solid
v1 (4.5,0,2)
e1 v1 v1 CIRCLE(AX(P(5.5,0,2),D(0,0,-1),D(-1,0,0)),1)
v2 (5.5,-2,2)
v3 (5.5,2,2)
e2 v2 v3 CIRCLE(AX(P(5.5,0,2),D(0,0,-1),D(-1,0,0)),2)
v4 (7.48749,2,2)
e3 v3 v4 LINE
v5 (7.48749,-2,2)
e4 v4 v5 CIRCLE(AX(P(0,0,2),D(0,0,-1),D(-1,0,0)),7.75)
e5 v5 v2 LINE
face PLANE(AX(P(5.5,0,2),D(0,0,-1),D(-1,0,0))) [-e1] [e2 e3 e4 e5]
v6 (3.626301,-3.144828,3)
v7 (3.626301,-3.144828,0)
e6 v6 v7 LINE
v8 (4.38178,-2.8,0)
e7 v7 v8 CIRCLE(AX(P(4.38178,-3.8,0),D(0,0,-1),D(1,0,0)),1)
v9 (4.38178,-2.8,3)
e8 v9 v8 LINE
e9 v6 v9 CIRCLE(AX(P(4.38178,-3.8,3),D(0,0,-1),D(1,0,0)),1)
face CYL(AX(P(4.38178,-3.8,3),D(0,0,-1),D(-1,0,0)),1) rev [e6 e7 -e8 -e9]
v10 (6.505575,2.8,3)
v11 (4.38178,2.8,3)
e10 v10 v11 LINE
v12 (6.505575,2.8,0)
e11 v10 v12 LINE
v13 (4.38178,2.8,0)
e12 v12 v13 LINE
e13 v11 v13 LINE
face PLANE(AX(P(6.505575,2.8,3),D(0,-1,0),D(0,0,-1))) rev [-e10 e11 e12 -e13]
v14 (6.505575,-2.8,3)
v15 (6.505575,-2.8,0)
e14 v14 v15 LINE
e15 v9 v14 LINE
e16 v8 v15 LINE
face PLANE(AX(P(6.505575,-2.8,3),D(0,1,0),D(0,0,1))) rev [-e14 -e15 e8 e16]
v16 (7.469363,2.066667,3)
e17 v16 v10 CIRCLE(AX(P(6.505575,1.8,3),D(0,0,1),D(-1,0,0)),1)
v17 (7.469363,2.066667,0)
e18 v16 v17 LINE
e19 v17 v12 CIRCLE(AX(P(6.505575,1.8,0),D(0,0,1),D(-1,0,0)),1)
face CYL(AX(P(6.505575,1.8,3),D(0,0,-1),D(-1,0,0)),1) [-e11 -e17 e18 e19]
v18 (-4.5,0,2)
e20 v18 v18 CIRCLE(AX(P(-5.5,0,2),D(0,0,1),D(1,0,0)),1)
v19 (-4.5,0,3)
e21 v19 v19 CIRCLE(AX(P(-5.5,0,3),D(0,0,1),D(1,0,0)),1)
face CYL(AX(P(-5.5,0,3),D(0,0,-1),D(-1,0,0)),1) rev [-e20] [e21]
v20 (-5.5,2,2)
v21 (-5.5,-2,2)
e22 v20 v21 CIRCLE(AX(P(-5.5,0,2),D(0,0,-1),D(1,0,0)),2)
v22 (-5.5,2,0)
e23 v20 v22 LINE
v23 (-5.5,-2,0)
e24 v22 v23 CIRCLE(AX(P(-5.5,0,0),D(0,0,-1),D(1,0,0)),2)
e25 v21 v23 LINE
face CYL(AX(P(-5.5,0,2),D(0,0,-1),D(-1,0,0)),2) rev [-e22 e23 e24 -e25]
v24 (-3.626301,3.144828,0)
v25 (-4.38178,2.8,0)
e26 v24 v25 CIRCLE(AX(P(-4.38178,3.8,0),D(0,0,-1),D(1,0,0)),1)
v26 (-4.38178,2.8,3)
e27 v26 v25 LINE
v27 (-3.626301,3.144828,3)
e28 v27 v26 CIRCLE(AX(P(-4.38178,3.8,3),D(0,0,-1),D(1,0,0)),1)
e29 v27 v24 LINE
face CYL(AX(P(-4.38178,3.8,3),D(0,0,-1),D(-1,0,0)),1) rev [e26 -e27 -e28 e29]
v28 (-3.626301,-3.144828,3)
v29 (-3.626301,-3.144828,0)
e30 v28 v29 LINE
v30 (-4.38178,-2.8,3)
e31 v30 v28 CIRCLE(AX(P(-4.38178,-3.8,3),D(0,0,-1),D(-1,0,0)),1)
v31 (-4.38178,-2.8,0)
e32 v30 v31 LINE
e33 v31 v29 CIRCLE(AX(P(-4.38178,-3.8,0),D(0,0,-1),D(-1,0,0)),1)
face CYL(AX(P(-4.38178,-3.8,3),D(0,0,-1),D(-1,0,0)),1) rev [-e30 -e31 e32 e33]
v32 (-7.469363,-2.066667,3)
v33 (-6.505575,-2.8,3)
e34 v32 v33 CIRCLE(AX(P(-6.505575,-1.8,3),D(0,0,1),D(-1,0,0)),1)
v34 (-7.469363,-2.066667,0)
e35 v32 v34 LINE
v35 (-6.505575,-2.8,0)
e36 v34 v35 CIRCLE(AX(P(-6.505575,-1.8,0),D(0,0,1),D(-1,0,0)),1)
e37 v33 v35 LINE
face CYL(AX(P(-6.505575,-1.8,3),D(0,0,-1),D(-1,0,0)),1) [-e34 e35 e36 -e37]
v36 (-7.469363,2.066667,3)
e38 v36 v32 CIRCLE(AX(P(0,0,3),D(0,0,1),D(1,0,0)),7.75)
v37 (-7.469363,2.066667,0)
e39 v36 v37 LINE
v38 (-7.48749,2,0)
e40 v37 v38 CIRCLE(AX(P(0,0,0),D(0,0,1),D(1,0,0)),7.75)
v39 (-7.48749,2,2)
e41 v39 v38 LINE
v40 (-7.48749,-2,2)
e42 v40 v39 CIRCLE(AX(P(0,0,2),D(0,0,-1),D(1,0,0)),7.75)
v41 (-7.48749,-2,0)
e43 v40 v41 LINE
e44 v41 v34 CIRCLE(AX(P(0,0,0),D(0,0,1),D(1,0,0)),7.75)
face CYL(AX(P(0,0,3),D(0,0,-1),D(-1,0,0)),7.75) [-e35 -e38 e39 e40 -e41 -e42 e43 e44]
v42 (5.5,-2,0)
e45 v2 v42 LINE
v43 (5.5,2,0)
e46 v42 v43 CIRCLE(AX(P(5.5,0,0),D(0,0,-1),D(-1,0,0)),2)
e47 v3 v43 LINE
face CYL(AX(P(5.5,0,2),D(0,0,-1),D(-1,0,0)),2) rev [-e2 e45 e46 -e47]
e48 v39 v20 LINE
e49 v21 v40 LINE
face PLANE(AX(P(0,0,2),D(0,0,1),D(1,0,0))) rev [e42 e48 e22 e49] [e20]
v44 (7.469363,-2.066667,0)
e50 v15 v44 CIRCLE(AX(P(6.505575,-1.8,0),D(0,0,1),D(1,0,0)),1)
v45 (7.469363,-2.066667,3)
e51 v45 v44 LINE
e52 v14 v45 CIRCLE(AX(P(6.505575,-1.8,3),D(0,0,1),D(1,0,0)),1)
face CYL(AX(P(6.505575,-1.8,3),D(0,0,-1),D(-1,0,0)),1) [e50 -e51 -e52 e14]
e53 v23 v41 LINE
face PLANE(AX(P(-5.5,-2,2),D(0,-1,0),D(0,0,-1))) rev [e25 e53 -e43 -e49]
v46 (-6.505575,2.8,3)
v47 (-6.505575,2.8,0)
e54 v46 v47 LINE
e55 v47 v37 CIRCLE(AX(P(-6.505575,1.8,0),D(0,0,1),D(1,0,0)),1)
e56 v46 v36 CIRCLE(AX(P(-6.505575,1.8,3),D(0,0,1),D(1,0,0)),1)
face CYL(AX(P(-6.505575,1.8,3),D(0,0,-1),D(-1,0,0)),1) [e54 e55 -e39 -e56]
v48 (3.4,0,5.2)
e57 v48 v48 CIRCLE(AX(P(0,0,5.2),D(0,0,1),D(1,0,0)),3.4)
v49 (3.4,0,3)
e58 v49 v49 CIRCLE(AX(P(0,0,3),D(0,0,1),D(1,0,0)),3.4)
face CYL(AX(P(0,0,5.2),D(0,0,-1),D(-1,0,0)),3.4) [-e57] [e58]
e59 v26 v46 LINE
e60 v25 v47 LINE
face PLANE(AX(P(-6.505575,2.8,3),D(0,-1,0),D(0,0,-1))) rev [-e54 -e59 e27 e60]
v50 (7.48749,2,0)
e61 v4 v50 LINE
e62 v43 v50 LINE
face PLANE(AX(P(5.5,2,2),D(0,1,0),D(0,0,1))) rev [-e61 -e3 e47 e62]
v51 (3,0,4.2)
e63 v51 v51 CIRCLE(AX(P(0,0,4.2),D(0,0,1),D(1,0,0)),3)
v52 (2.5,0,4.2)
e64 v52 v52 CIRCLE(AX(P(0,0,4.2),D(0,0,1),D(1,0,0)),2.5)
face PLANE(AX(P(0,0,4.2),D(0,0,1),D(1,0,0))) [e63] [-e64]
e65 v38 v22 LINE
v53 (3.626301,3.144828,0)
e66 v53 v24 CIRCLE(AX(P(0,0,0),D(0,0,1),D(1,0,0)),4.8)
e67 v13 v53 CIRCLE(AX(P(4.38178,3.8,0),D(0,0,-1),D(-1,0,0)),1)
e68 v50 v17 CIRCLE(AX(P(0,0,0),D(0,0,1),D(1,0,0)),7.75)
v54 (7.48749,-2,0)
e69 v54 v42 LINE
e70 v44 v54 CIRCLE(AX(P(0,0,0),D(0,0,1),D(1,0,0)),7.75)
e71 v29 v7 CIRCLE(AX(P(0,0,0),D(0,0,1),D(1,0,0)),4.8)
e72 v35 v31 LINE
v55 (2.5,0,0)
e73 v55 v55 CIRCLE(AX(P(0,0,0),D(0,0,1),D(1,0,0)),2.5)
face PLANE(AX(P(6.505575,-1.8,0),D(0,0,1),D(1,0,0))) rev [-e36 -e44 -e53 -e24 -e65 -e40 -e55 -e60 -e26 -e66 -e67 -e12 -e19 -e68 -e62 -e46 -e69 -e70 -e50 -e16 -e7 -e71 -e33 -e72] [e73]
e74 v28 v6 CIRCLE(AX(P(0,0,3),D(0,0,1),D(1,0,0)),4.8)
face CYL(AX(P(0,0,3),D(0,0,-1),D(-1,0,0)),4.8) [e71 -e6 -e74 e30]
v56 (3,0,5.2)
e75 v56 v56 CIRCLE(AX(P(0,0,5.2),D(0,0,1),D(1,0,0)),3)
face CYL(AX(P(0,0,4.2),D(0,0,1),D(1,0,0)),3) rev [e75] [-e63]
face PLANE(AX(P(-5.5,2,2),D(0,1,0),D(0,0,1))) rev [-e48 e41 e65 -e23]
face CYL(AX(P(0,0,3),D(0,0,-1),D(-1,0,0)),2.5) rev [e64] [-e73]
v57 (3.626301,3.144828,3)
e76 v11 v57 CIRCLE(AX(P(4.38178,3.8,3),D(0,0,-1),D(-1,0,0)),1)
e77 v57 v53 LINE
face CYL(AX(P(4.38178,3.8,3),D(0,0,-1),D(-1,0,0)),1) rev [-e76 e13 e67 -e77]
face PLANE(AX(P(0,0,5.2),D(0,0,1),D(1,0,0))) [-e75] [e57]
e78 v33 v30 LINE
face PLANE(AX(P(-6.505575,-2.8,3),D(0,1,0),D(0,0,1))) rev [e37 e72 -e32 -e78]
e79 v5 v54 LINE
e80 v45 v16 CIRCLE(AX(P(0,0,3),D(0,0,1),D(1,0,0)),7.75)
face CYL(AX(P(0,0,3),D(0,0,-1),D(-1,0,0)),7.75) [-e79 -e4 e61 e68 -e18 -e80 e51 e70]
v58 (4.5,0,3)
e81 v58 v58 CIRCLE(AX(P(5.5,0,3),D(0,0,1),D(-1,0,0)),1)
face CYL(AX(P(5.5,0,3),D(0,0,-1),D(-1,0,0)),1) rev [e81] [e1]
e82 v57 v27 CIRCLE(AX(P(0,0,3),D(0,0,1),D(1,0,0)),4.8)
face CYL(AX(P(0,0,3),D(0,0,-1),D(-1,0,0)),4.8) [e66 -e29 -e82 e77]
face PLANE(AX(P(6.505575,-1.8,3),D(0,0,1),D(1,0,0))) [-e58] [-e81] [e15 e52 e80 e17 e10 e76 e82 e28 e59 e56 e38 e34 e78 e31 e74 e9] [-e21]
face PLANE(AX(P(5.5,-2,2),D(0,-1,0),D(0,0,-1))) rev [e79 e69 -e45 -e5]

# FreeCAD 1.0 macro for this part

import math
import FreeCAD as App
import Part
import Sketcher

V = App.Vector
Q = App.Units.Quantity

doc = App.newDocument("Part")
params = doc.addObject("Spreadsheet::Sheet", "Params")
for row, (alias, value) in enumerate([
    ("sketch1_diameter", "2 mm"),
    ("sketch1_diameter2", "5 mm"),
    ("sketch1_radius", "4.8 mm"),
    ("sketch1_radius2", "7.75 mm"),
    ("pad1_length", "3 mm"),
    ("sketch2_diameter", "5 mm"),
    ("sketch2_diameter2", "6.8 mm"),
    ("pad2_length", "2.2 mm"),
    ("sketch3_radius", "2 mm"),
    ("sketch3_radius2", "7.75 mm"),
    ("pocket1_length", "2 mm"),
    ("sketch4_diameter", "6 mm"),
    ("pocket2_length", "1 mm"),
], start=1):
    params.set(f"A{row}", alias)
    params.set(f"B{row}", "=" + value)
    params.setAlias(f"B{row}", alias)

body = doc.addObject("PartDesign::Body", "Body")

# Sketch on XY plane
sketch1 = doc.addObject("Sketcher::SketchObject", "Sketch")
body.addObject(sketch1)
sketch1.AttachmentSupport = (doc.XY_Plane, [""])
sketch1.MapMode = "FlatFace"
sketch1.addGeometry(Part.LineSegment(V(-4.38178, 2.8, 0), V(-6.505575, 2.8, 0)), False)
sketch1.addGeometry(Part.ArcOfCircle(Part.Circle(V(-6.505575, 1.8, 0), V(0, 0, 1), 1), math.radians(90), math.radians(164.53399)), False)
sketch1.addGeometry(Part.ArcOfCircle(Part.Circle(V(0, 0, 0), V(0, 0, 1), 7.75), math.radians(164.53399), math.radians(195.46601)), False)
sketch1.addGeometry(Part.ArcOfCircle(Part.Circle(V(-6.505575, -1.8, 0), V(0, 0, 1), 1), math.radians(-164.53399), math.radians(-90)), False)
sketch1.addGeometry(Part.LineSegment(V(-6.505575, -2.8, 0), V(-4.38178, -2.8, 0)), False)
sketch1.addGeometry(Part.ArcOfCircle(Part.Circle(V(-4.38178, -3.8, 0), V(0, 0, 1), 1), math.radians(40.932725), math.radians(90)), False)
sketch1.addGeometry(Part.ArcOfCircle(Part.Circle(V(0, 0, 0), V(0, 0, 1), 4.8), math.radians(-139.067275), math.radians(-40.932725)), False)
sketch1.addGeometry(Part.ArcOfCircle(Part.Circle(V(4.38178, -3.8, 0), V(0, 0, 1), 1), math.radians(90), math.radians(139.067275)), False)
sketch1.addGeometry(Part.LineSegment(V(4.38178, -2.8, 0), V(6.505575, -2.8, 0)), False)
sketch1.addGeometry(Part.ArcOfCircle(Part.Circle(V(6.505575, -1.8, 0), V(0, 0, 1), 1), math.radians(-90), math.radians(-15.46601)), False)
sketch1.addGeometry(Part.ArcOfCircle(Part.Circle(V(0, 0, 0), V(0, 0, 1), 7.75), math.radians(-15.46601), math.radians(15.46601)), False)
sketch1.addGeometry(Part.ArcOfCircle(Part.Circle(V(6.505575, 1.8, 0), V(0, 0, 1), 1), math.radians(15.46601), math.radians(90)), False)
sketch1.addGeometry(Part.LineSegment(V(6.505575, 2.8, 0), V(4.38178, 2.8, 0)), False)
sketch1.addGeometry(Part.ArcOfCircle(Part.Circle(V(4.38178, 3.8, 0), V(0, 0, 1), 1), math.radians(-139.067275), math.radians(-90)), False)
sketch1.addGeometry(Part.ArcOfCircle(Part.Circle(V(0, 0, 0), V(0, 0, 1), 4.8), math.radians(40.932725), math.radians(139.067275)), False)
sketch1.addGeometry(Part.ArcOfCircle(Part.Circle(V(-4.38178, 3.8, 0), V(0, 0, 1), 1), math.radians(-90), math.radians(-40.932725)), False)
sketch1.addGeometry(Part.Circle(V(5.5, 0, 0), V(0, 0, 1), 1), False)
sketch1.addGeometry(Part.Circle(V(0, 0, 0), V(0, 0, 1), 2.5), False)
sketch1.addGeometry(Part.Circle(V(-5.5, 0, 0), V(0, 0, 1), 1), False)
sketch1.addConstraint(Sketcher.Constraint("Tangent", 0, 2, 1, 1))
sketch1.addConstraint(Sketcher.Constraint("Tangent", 1, 2, 2, 1))
sketch1.addConstraint(Sketcher.Constraint("Tangent", 2, 2, 3, 1))
sketch1.addConstraint(Sketcher.Constraint("Tangent", 3, 2, 4, 1))
sketch1.addConstraint(Sketcher.Constraint("Tangent", 4, 2, 5, 2))
sketch1.addConstraint(Sketcher.Constraint("Tangent", 5, 1, 6, 1))
sketch1.addConstraint(Sketcher.Constraint("Tangent", 6, 2, 7, 2))
sketch1.addConstraint(Sketcher.Constraint("Tangent", 7, 1, 8, 1))
sketch1.addConstraint(Sketcher.Constraint("Tangent", 8, 2, 9, 1))
sketch1.addConstraint(Sketcher.Constraint("Tangent", 9, 2, 10, 1))
sketch1.addConstraint(Sketcher.Constraint("Tangent", 10, 2, 11, 1))
sketch1.addConstraint(Sketcher.Constraint("Tangent", 11, 2, 12, 1))
sketch1.addConstraint(Sketcher.Constraint("Tangent", 12, 2, 13, 2))
sketch1.addConstraint(Sketcher.Constraint("Tangent", 13, 1, 14, 1))
sketch1.addConstraint(Sketcher.Constraint("Tangent", 14, 2, 15, 2))
sketch1.addConstraint(Sketcher.Constraint("Tangent", 15, 1, 0, 1))
sketch1.addConstraint(Sketcher.Constraint("Horizontal", 0))
sketch1.addConstraint(Sketcher.Constraint("Horizontal", 4))
sketch1.addConstraint(Sketcher.Constraint("Horizontal", 8))
sketch1.addConstraint(Sketcher.Constraint("Horizontal", 12))
sketch1.addConstraint(Sketcher.Constraint("Coincident", 2, 3, -1, 1))
sketch1.addConstraint(Sketcher.Constraint("Coincident", 6, 3, -1, 1))
sketch1.addConstraint(Sketcher.Constraint("Coincident", 10, 3, -1, 1))
sketch1.addConstraint(Sketcher.Constraint("Coincident", 14, 3, -1, 1))
sketch1.addConstraint(Sketcher.Constraint("Coincident", 17, 3, -1, 1))
sketch1.addConstraint(Sketcher.Constraint("Equal", 1, 3))
sketch1.addConstraint(Sketcher.Constraint("Equal", 3, 5))
sketch1.addConstraint(Sketcher.Constraint("Equal", 5, 7))
sketch1.addConstraint(Sketcher.Constraint("Equal", 7, 9))
sketch1.addConstraint(Sketcher.Constraint("Equal", 2, 10))
sketch1.addConstraint(Sketcher.Constraint("Equal", 9, 11))
sketch1.addConstraint(Sketcher.Constraint("Equal", 11, 13))
sketch1.addConstraint(Sketcher.Constraint("Equal", 6, 14))
sketch1.addConstraint(Sketcher.Constraint("Equal", 13, 15))
sketch1.addConstraint(Sketcher.Constraint("Equal", 15, 16))
sketch1.addConstraint(Sketcher.Constraint("Equal", 16, 18))
sketch1.addConstraint(Sketcher.Constraint("Symmetric", 16, 3, 18, 3, -1, 1))
sketch1.addConstraint(Sketcher.Constraint("PointOnObject", 16, 3, -1))
sketch1.addConstraint(Sketcher.Constraint("Horizontal", 5, 3, 7, 3))
sketch1.addConstraint(Sketcher.Constraint("Horizontal", 1, 3, 11, 3))
sketch1.addConstraint(Sketcher.Constraint("Vertical", 1, 3, 3, 3))
sketch1.addConstraint(Sketcher.Constraint("Diameter", 16, Q("2 mm")))
sketch1.addConstraint(Sketcher.Constraint("Diameter", 17, Q("5 mm")))
sketch1.addConstraint(Sketcher.Constraint("Radius", 6, Q("4.8 mm")))
sketch1.addConstraint(Sketcher.Constraint("Radius", 2, Q("7.75 mm")))
sketch1.addConstraint(Sketcher.Constraint("DistanceY", -1, 1, 1, 3, Q("1.8 mm")))
sketch1.addConstraint(Sketcher.Constraint("DistanceX", -1, 1, 16, 3, Q("5.5 mm")))
sketch1.setExpression("Constraints[41]", "Params.sketch1_diameter")
sketch1.setExpression("Constraints[42]", "Params.sketch1_diameter2")
sketch1.setExpression("Constraints[43]", "Params.sketch1_radius")
sketch1.setExpression("Constraints[44]", "Params.sketch1_radius2")
pad1 = doc.addObject("PartDesign::Pad", "Pad")
body.addObject(pad1)
pad1.Profile = sketch1
pad1.setExpression("Length", "Params.pad1_length")

# Sketch on XY plane
sketch2 = doc.addObject("Sketcher::SketchObject", "Sketch001")
body.addObject(sketch2)
sketch2.AttachmentSupport = (doc.XY_Plane, [""])
sketch2.MapMode = "FlatFace"
sketch2.AttachmentOffset = App.Placement(V(0, 0, 3), App.Rotation())
sketch2.addGeometry(Part.Circle(V(0, 0, 0), V(0, 0, 1), 3.4), False)
sketch2.addGeometry(Part.Circle(V(0, 0, 0), V(0, 0, 1), 2.5), False)
sketch2.addConstraint(Sketcher.Constraint("Coincident", 0, 3, -1, 1))
sketch2.addConstraint(Sketcher.Constraint("Coincident", 1, 3, -1, 1))
sketch2.addConstraint(Sketcher.Constraint("Diameter", 1, Q("5 mm")))
sketch2.addConstraint(Sketcher.Constraint("Diameter", 0, Q("6.8 mm")))
sketch2.setExpression("Constraints[2]", "Params.sketch2_diameter")
sketch2.setExpression("Constraints[3]", "Params.sketch2_diameter2")
pad2 = doc.addObject("PartDesign::Pad", "Pad001")
body.addObject(pad2)
pad2.Profile = sketch2
pad2.setExpression("Length", "Params.pad2_length")

# Sketch on XY plane
sketch3 = doc.addObject("Sketcher::SketchObject", "Sketch002")
body.addObject(sketch3)
sketch3.AttachmentSupport = (doc.XY_Plane, [""])
sketch3.MapMode = "FlatFace"
sketch3.addGeometry(Part.LineSegment(V(5.5, 2, 0), V(7.48749, 2, 0)), False)
sketch3.addGeometry(Part.ArcOfCircle(Part.Circle(V(0, 0, 0), V(0, 0, 1), 7.75), math.radians(-14.955248), math.radians(14.955248)), False)
sketch3.addGeometry(Part.LineSegment(V(7.48749, -2, 0), V(5.5, -2, 0)), False)
sketch3.addGeometry(Part.ArcOfCircle(Part.Circle(V(5.5, 0, 0), V(0, 0, 1), 2), math.radians(90), math.radians(270)), False)
sketch3.addGeometry(Part.LineSegment(V(-5.5, -2, 0), V(-7.48749, -2, 0)), False)
sketch3.addGeometry(Part.ArcOfCircle(Part.Circle(V(0, 0, 0), V(0, 0, 1), 7.75), math.radians(165.044752), math.radians(194.955248)), False)
sketch3.addGeometry(Part.LineSegment(V(-7.48749, 2, 0), V(-5.5, 2, 0)), False)
sketch3.addGeometry(Part.ArcOfCircle(Part.Circle(V(-5.5, 0, 0), V(0, 0, 1), 2), math.radians(-90), math.radians(90)), False)
sketch3.addConstraint(Sketcher.Constraint("Coincident", 0, 2, 1, 2))
sketch3.addConstraint(Sketcher.Constraint("Coincident", 1, 1, 2, 1))
sketch3.addConstraint(Sketcher.Constraint("Tangent", 2, 2, 3, 2))
sketch3.addConstraint(Sketcher.Constraint("Tangent", 3, 1, 0, 1))
sketch3.addConstraint(Sketcher.Constraint("Coincident", 4, 2, 5, 2))
sketch3.addConstraint(Sketcher.Constraint("Coincident", 5, 1, 6, 1))
sketch3.addConstraint(Sketcher.Constraint("Tangent", 6, 2, 7, 2))
sketch3.addConstraint(Sketcher.Constraint("Tangent", 7, 1, 4, 1))
sketch3.addConstraint(Sketcher.Constraint("Horizontal", 0))
sketch3.addConstraint(Sketcher.Constraint("Horizontal", 2))
sketch3.addConstraint(Sketcher.Constraint("Horizontal", 4))
sketch3.addConstraint(Sketcher.Constraint("Horizontal", 6))
sketch3.addConstraint(Sketcher.Constraint("Coincident", 1, 3, -1, 1))
sketch3.addConstraint(Sketcher.Constraint("Coincident", 5, 3, -1, 1))
sketch3.addConstraint(Sketcher.Constraint("Equal", 1, 5))
sketch3.addConstraint(Sketcher.Constraint("Equal", 3, 7))
sketch3.addConstraint(Sketcher.Constraint("Symmetric", 3, 3, 7, 3, -1, 1))
sketch3.addConstraint(Sketcher.Constraint("PointOnObject", 3, 3, -1))
sketch3.addConstraint(Sketcher.Constraint("Radius", 3, Q("2 mm")))
sketch3.addConstraint(Sketcher.Constraint("Radius", 1, Q("7.75 mm")))
sketch3.addConstraint(Sketcher.Constraint("DistanceX", 7, 3, 3, 3, Q("11 mm")))
sketch3.setExpression("Constraints[18]", "Params.sketch3_radius")
sketch3.setExpression("Constraints[19]", "Params.sketch3_radius2")
pocket1 = doc.addObject("PartDesign::Pocket", "Pocket")
body.addObject(pocket1)
pocket1.Profile = sketch3
pocket1.setExpression("Length", "Params.pocket1_length")
pocket1.Reversed = True

# Sketch on XY plane
sketch4 = doc.addObject("Sketcher::SketchObject", "Sketch003")
body.addObject(sketch4)
sketch4.AttachmentSupport = (doc.XY_Plane, [""])
sketch4.MapMode = "FlatFace"
sketch4.AttachmentOffset = App.Placement(V(0, 0, 5.2), App.Rotation())
sketch4.addGeometry(Part.Circle(V(0, 0, 0), V(0, 0, 1), 3), False)
sketch4.addConstraint(Sketcher.Constraint("Coincident", 0, 3, -1, 1))
sketch4.addConstraint(Sketcher.Constraint("Diameter", 0, Q("6 mm")))
sketch4.setExpression("Constraints[1]", "Params.sketch4_diameter")
pocket2 = doc.addObject("PartDesign::Pocket", "Pocket001")
body.addObject(pocket2)
pocket2.Profile = sketch4
pocket2.setExpression("Length", "Params.pocket2_length")

doc.recompute()
